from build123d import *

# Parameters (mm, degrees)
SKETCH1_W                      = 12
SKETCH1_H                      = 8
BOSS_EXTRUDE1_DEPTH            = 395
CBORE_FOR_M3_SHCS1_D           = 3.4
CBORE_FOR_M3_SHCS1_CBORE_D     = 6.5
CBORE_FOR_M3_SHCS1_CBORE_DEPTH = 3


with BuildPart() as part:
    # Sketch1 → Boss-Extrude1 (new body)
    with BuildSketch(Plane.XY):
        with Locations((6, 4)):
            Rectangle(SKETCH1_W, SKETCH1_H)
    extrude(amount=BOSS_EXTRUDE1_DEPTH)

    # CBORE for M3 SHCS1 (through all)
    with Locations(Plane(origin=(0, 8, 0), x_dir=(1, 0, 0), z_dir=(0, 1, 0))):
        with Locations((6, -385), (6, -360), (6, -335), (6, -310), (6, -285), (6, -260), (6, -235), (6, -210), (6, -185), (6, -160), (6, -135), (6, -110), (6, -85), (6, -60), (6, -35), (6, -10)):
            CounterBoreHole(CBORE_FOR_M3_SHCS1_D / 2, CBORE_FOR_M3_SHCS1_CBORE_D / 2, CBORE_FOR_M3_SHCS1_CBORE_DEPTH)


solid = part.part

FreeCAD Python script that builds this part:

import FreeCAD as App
import Part
import Sketcher


def add_polygon(sketch, points):
    """Adds a closed chain of lines whose ends are joined by coincident constraints."""
    first, n = sketch.GeometryCount, len(points)
    for a, b in zip(points, points[1:] + points[:1]):
        sketch.addGeometry(Part.LineSegment(App.Vector(*a, 0), App.Vector(*b, 0)), False)
    for i in range(n):
        sketch.addConstraint(Sketcher.Constraint("Coincident", first + i, 2, first + (i + 1) % n, 1))

doc = App.newDocument("Part")
body = doc.addObject("PartDesign::Body", "Body")

# Sketch on XY plane
sketch1 = doc.addObject("Sketcher::SketchObject", "Sketch")
body.addObject(sketch1)
sketch1.AttachmentSupport = (doc.XY_Plane, [""])
sketch1.MapMode = "FlatFace"
add_polygon(sketch1, [(0, 8), (0, 0), (12, 0), (12, 8)])  # lines 0-3
sketch1.addConstraint(Sketcher.Constraint("Vertical", 0))
sketch1.addConstraint(Sketcher.Constraint("Horizontal", 1))
sketch1.addConstraint(Sketcher.Constraint("Vertical", 2))
sketch1.addConstraint(Sketcher.Constraint("Horizontal", 3))
sketch1.addConstraint(Sketcher.Constraint("Coincident", 0, 2, -1, 1))
sketch1.addConstraint(Sketcher.Constraint("DistanceX", 1, 1, 1, 2, 12.0))
sketch1.addConstraint(Sketcher.Constraint("DistanceY", 0, 2, 0, 1, 8.0))
pad1 = doc.addObject("PartDesign::Pad", "Pad")
body.addObject(pad1)
pad1.Profile = sketch1
pad1.Length = 395

# Sketch on XZ plane
sketch2 = doc.addObject("Sketcher::SketchObject", "Sketch001")
body.addObject(sketch2)
sketch2.AttachmentSupport = (doc.XZ_Plane, [""])
sketch2.MapMode = "FlatFace"
sketch2.AttachmentOffset = App.Placement(App.Vector(0, 0, -8), App.Rotation())
sketch2.addGeometry(Part.Circle(App.Vector(6, 385, 0), App.Vector(0, 0, 1), 1.7), False)
sketch2.addGeometry(Part.Circle(App.Vector(6, 360, 0), App.Vector(0, 0, 1), 1.7), False)
sketch2.addGeometry(Part.Circle(App.Vector(6, 335, 0), App.Vector(0, 0, 1), 1.7), False)
sketch2.addGeometry(Part.Circle(App.Vector(6, 310, 0), App.Vector(0, 0, 1), 1.7), False)
sketch2.addGeometry(Part.Circle(App.Vector(6, 285, 0), App.Vector(0, 0, 1), 1.7), False)
sketch2.addGeometry(Part.Circle(App.Vector(6, 260, 0), App.Vector(0, 0, 1), 1.7), False)
sketch2.addGeometry(Part.Circle(App.Vector(6, 235, 0), App.Vector(0, 0, 1), 1.7), False)
sketch2.addGeometry(Part.Circle(App.Vector(6, 210, 0), App.Vector(0, 0, 1), 1.7), False)
sketch2.addGeometry(Part.Circle(App.Vector(6, 185, 0), App.Vector(0, 0, 1), 1.7), False)
sketch2.addGeometry(Part.Circle(App.Vector(6, 160, 0), App.Vector(0, 0, 1), 1.7), False)
sketch2.addGeometry(Part.Circle(App.Vector(6, 135, 0), App.Vector(0, 0, 1), 1.7), False)
sketch2.addGeometry(Part.Circle(App.Vector(6, 110, 0), App.Vector(0, 0, 1), 1.7), False)
sketch2.addGeometry(Part.Circle(App.Vector(6, 85, 0), App.Vector(0, 0, 1), 1.7), False)
sketch2.addGeometry(Part.Circle(App.Vector(6, 60, 0), App.Vector(0, 0, 1), 1.7), False)
sketch2.addGeometry(Part.Circle(App.Vector(6, 35, 0), App.Vector(0, 0, 1), 1.7), False)
sketch2.addGeometry(Part.Circle(App.Vector(6, 10, 0), App.Vector(0, 0, 1), 1.7), False)
sketch2.addConstraint(Sketcher.Constraint("Equal", 0, 1))
sketch2.addConstraint(Sketcher.Constraint("Equal", 1, 2))
sketch2.addConstraint(Sketcher.Constraint("Equal", 2, 3))
sketch2.addConstraint(Sketcher.Constraint("Equal", 3, 4))
sketch2.addConstraint(Sketcher.Constraint("Equal", 4, 5))
sketch2.addConstraint(Sketcher.Constraint("Equal", 5, 6))
sketch2.addConstraint(Sketcher.Constraint("Equal", 6, 7))
sketch2.addConstraint(Sketcher.Constraint("Equal", 7, 8))
sketch2.addConstraint(Sketcher.Constraint("Equal", 8, 9))
sketch2.addConstraint(Sketcher.Constraint("Equal", 9, 10))
sketch2.addConstraint(Sketcher.Constraint("Equal", 10, 11))
sketch2.addConstraint(Sketcher.Constraint("Equal", 11, 12))
sketch2.addConstraint(Sketcher.Constraint("Equal", 12, 13))
sketch2.addConstraint(Sketcher.Constraint("Equal", 13, 14))
sketch2.addConstraint(Sketcher.Constraint("Equal", 14, 15))
sketch2.addConstraint(Sketcher.Constraint("Vertical", 0, 3, 1, 3))
sketch2.addConstraint(Sketcher.Constraint("Vertical", 1, 3, 2, 3))
sketch2.addConstraint(Sketcher.Constraint("Vertical", 2, 3, 3, 3))
sketch2.addConstraint(Sketcher.Constraint("Vertical", 3, 3, 4, 3))
sketch2.addConstraint(Sketcher.Constraint("Vertical", 4, 3, 5, 3))
sketch2.addConstraint(Sketcher.Constraint("Vertical", 5, 3, 6, 3))
sketch2.addConstraint(Sketcher.Constraint("Vertical", 6, 3, 7, 3))
sketch2.addConstraint(Sketcher.Constraint("Vertical", 7, 3, 8, 3))
sketch2.addConstraint(Sketcher.Constraint("Vertical", 8, 3, 9, 3))
sketch2.addConstraint(Sketcher.Constraint("Vertical", 9, 3, 10, 3))
sketch2.addConstraint(Sketcher.Constraint("Vertical", 10, 3, 11, 3))
sketch2.addConstraint(Sketcher.Constraint("Vertical", 11, 3, 12, 3))
sketch2.addConstraint(Sketcher.Constraint("Vertical", 12, 3, 13, 3))
sketch2.addConstraint(Sketcher.Constraint("Vertical", 13, 3, 14, 3))
sketch2.addConstraint(Sketcher.Constraint("Vertical", 14, 3, 15, 3))
sketch2.addConstraint(Sketcher.Constraint("Diameter", 0, 3.4))
sketch2.addConstraint(Sketcher.Constraint("DistanceX", -1, 1, 0, 3, 6.0))
sketch2.addConstraint(Sketcher.Constraint("DistanceY", -1, 1, 0, 3, 385.0))
sketch2.addConstraint(Sketcher.Constraint("DistanceY", -1, 1, 1, 3, 360.0))
sketch2.addConstraint(Sketcher.Constraint("DistanceY", -1, 1, 2, 3, 335.0))
sketch2.addConstraint(Sketcher.Constraint("DistanceY", -1, 1, 3, 3, 310.0))
sketch2.addConstraint(Sketcher.Constraint("DistanceY", -1, 1, 4, 3, 285.0))
sketch2.addConstraint(Sketcher.Constraint("DistanceY", -1, 1, 5, 3, 260.0))
sketch2.addConstraint(Sketcher.Constraint("DistanceY", -1, 1, 6, 3, 235.0))
sketch2.addConstraint(Sketcher.Constraint("DistanceY", -1, 1, 7, 3, 210.0))
sketch2.addConstraint(Sketcher.Constraint("DistanceY", -1, 1, 8, 3, 185.0))
sketch2.addConstraint(Sketcher.Constraint("DistanceY", -1, 1, 9, 3, 160.0))
sketch2.addConstraint(Sketcher.Constraint("DistanceY", -1, 1, 10, 3, 135.0))
sketch2.addConstraint(Sketcher.Constraint("DistanceY", -1, 1, 11, 3, 110.0))
sketch2.addConstraint(Sketcher.Constraint("DistanceY", -1, 1, 12, 3, 85.0))
sketch2.addConstraint(Sketcher.Constraint("DistanceY", -1, 1, 13, 3, 60.0))
sketch2.addConstraint(Sketcher.Constraint("DistanceY", -1, 1, 14, 3, 35.0))
sketch2.addConstraint(Sketcher.Constraint("DistanceY", -1, 1, 15, 3, 10.0))
doc.recompute()
hole = doc.addObject("PartDesign::Hole", "Hole")
body.addObject(hole)
hole.Profile = sketch2
hole.ThreadType = "None"
hole.Diameter = 3.4
hole.DepthType = "ThroughAll"
hole.HoleCutType = "Counterbore"
hole.HoleCutDiameter = 6.5
hole.HoleCutDepth = 3
hole.Reversed = True

doc.recompute()
